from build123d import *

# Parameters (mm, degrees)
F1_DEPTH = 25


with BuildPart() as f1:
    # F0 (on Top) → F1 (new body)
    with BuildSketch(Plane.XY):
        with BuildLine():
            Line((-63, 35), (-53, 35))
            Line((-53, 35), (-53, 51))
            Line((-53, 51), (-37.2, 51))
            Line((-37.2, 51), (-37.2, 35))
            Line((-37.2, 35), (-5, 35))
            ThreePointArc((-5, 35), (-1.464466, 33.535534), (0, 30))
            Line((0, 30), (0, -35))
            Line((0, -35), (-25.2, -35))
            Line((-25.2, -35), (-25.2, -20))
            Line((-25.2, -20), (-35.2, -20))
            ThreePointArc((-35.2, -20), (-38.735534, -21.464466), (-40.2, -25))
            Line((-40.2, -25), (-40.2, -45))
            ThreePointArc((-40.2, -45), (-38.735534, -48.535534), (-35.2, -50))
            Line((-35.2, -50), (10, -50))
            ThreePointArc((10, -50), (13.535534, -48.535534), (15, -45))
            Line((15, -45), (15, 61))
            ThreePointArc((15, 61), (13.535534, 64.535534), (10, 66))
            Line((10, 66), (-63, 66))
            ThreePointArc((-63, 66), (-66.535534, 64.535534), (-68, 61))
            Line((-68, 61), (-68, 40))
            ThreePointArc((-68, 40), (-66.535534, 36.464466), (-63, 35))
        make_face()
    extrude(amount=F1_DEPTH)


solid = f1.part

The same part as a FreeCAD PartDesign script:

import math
import FreeCAD as App
import Part
import Sketcher

V = App.Vector

doc = App.newDocument("Part")
params = doc.addObject("Spreadsheet::Sheet", "Params")
for row, (alias, value) in enumerate([
    ("sketch1_radius", "5 mm"),
    ("sketch1_width", "10 mm"),
    ("sketch1_width2", "73 mm"),
    ("sketch1_height", "16 mm"),
    ("sketch1_height2", "65 mm"),
    ("pad1_length", "25 mm"),
], start=1):
    params.set(f"A{row}", alias)
    params.set(f"B{row}", "=" + value)
    params.setAlias(f"B{row}", alias)

body = doc.addObject("PartDesign::Body", "Body")

# Sketch on XY plane
sketch1 = body.newObject("Sketcher::SketchObject", "Sketch")
sketch1.AttachmentSupport = (doc.getObject("XY_Plane"), [""])
sketch1.MapMode = "FlatFace"
sketch1.addGeometry(Part.LineSegment(V(-63, 35, 0), V(-53, 35, 0)), False)
sketch1.addGeometry(Part.LineSegment(V(-53, 35, 0), V(-53, 51, 0)), False)
sketch1.addGeometry(Part.LineSegment(V(-53, 51, 0), V(-37.2, 51, 0)), False)
sketch1.addGeometry(Part.LineSegment(V(-37.2, 51, 0), V(-37.2, 35, 0)), False)
sketch1.addGeometry(Part.LineSegment(V(-37.2, 35, 0), V(-5, 35, 0)), False)
sketch1.addGeometry(Part.ArcOfCircle(Part.Circle(V(-5, 30, 0), V(0, 0, 1), 5), math.radians(0), math.radians(90)), False)
sketch1.addGeometry(Part.LineSegment(V(0, 30, 0), V(0, -35, 0)), False)
sketch1.addGeometry(Part.LineSegment(V(0, -35, 0), V(-25.2, -35, 0)), False)
sketch1.addGeometry(Part.LineSegment(V(-25.2, -35, 0), V(-25.2, -20, 0)), False)
sketch1.addGeometry(Part.LineSegment(V(-25.2, -20, 0), V(-35.2, -20, 0)), False)
sketch1.addGeometry(Part.ArcOfCircle(Part.Circle(V(-35.2, -25, 0), V(0, 0, 1), 5), math.radians(90), math.radians(180)), False)
sketch1.addGeometry(Part.LineSegment(V(-40.2, -25, 0), V(-40.2, -45, 0)), False)
sketch1.addGeometry(Part.ArcOfCircle(Part.Circle(V(-35.2, -45, 0), V(0, 0, 1), 5), math.radians(180), math.radians(270)), False)
sketch1.addGeometry(Part.LineSegment(V(-35.2, -50, 0), V(10, -50, 0)), False)
sketch1.addGeometry(Part.ArcOfCircle(Part.Circle(V(10, -45, 0), V(0, 0, 1), 5), math.radians(-90), math.radians(0)), False)
sketch1.addGeometry(Part.LineSegment(V(15, -45, 0), V(15, 61, 0)), False)
sketch1.addGeometry(Part.ArcOfCircle(Part.Circle(V(10, 61, 0), V(0, 0, 1), 5), math.radians(0), math.radians(90)), False)
sketch1.addGeometry(Part.LineSegment(V(10, 66, 0), V(-63, 66, 0)), False)
sketch1.addGeometry(Part.ArcOfCircle(Part.Circle(V(-63, 61, 0), V(0, 0, 1), 5), math.radians(90), math.radians(180)), False)
sketch1.addGeometry(Part.LineSegment(V(-68, 61, 0), V(-68, 40, 0)), False)
sketch1.addGeometry(Part.ArcOfCircle(Part.Circle(V(-63, 40, 0), V(0, 0, 1), 5), math.radians(180), math.radians(270)), False)
sketch1.addConstraint(Sketcher.Constraint("Coincident", 0, 2, 1, 1))
sketch1.addConstraint(Sketcher.Constraint("Coincident", 1, 2, 2, 1))
sketch1.addConstraint(Sketcher.Constraint("Coincident", 2, 2, 3, 1))
sketch1.addConstraint(Sketcher.Constraint("Coincident", 3, 2, 4, 1))
sketch1.addConstraint(Sketcher.Constraint("Tangent", 4, 2, 5, 2))
sketch1.addConstraint(Sketcher.Constraint("Tangent", 5, 1, 6, 1))
sketch1.addConstraint(Sketcher.Constraint("Coincident", 6, 2, 7, 1))
sketch1.addConstraint(Sketcher.Constraint("Coincident", 7, 2, 8, 1))
sketch1.addConstraint(Sketcher.Constraint("Coincident", 8, 2, 9, 1))
sketch1.addConstraint(Sketcher.Constraint("Tangent", 9, 2, 10, 1))
sketch1.addConstraint(Sketcher.Constraint("Tangent", 10, 2, 11, 1))
sketch1.addConstraint(Sketcher.Constraint("Tangent", 11, 2, 12, 1))
sketch1.addConstraint(Sketcher.Constraint("Tangent", 12, 2, 13, 1))
sketch1.addConstraint(Sketcher.Constraint("Tangent", 13, 2, 14, 1))
sketch1.addConstraint(Sketcher.Constraint("Tangent", 14, 2, 15, 1))
sketch1.addConstraint(Sketcher.Constraint("Tangent", 15, 2, 16, 1))
sketch1.addConstraint(Sketcher.Constraint("Tangent", 16, 2, 17, 1))
sketch1.addConstraint(Sketcher.Constraint("Tangent", 17, 2, 18, 1))
sketch1.addConstraint(Sketcher.Constraint("Tangent", 18, 2, 19, 1))
sketch1.addConstraint(Sketcher.Constraint("Tangent", 19, 2, 20, 1))
sketch1.addConstraint(Sketcher.Constraint("Tangent", 20, 2, 0, 1))
sketch1.addConstraint(Sketcher.Constraint("Horizontal", 0))
sketch1.addConstraint(Sketcher.Constraint("Vertical", 1))
sketch1.addConstraint(Sketcher.Constraint("Horizontal", 2))
sketch1.addConstraint(Sketcher.Constraint("Vertical", 3))
sketch1.addConstraint(Sketcher.Constraint("Horizontal", 4))
sketch1.addConstraint(Sketcher.Constraint("Vertical", 6))
sketch1.addConstraint(Sketcher.Constraint("Horizontal", 7))
sketch1.addConstraint(Sketcher.Constraint("Vertical", 8))
sketch1.addConstraint(Sketcher.Constraint("Horizontal", 9))
sketch1.addConstraint(Sketcher.Constraint("Vertical", 11))
sketch1.addConstraint(Sketcher.Constraint("Horizontal", 13))
sketch1.addConstraint(Sketcher.Constraint("Vertical", 15))
sketch1.addConstraint(Sketcher.Constraint("Horizontal", 17))
sketch1.addConstraint(Sketcher.Constraint("Vertical", 19))
sketch1.addConstraint(Sketcher.Constraint("Equal", 5, 10))
sketch1.addConstraint(Sketcher.Constraint("Equal", 10, 12))
sketch1.addConstraint(Sketcher.Constraint("Equal", 12, 14))
sketch1.addConstraint(Sketcher.Constraint("Equal", 14, 16))
sketch1.addConstraint(Sketcher.Constraint("Equal", 16, 18))
sketch1.addConstraint(Sketcher.Constraint("Equal", 18, 20))
sketch1.addConstraint(Sketcher.Constraint("PointOnObject", 5, 1, -2))
sketch1.addConstraint(Sketcher.Constraint("Horizontal", 0, 2, 3, 2))
sketch1.addConstraint(Sketcher.Constraint("Equal", 0, 9))
sketch1.addConstraint(Sketcher.Constraint("Radius", 5, 5.0))
sketch1.addConstraint(Sketcher.Constraint("DistanceX", 0, 1, 0, 2, 10.0))
sketch1.addConstraint(Sketcher.Constraint("DistanceX", 17, 2, 17, 1, 73.0))
sketch1.addConstraint(Sketcher.Constraint("DistanceY", 1, 1, 1, 2, 16.0))
sketch1.addConstraint(Sketcher.Constraint("DistanceY", 6, 2, 6, 1, 65.0))
sketch1.addConstraint(Sketcher.Constraint("DistanceY", 8, 1, 8, 2, 15.0))
sketch1.addConstraint(Sketcher.Constraint("DistanceY", 11, 2, 11, 1, 20.0))
sketch1.addConstraint(Sketcher.Constraint("DistanceY", 15, 1, 15, 2, 106.0))
sketch1.addConstraint(Sketcher.Constraint("DistanceX", 2, 1, 2, 2, 15.8))
sketch1.addConstraint(Sketcher.Constraint("DistanceX", 4, 1, 4, 2, 32.2))
sketch1.addConstraint(Sketcher.Constraint("DistanceX", 7, 2, 7, 1, 25.2))
sketch1.addConstraint(Sketcher.Constraint("DistanceY", -1, 1, 5, 3, 30.0))
sketch1.setExpression("Constraints[44]", "Params.sketch1_radius")
sketch1.setExpression("Constraints[45]", "Params.sketch1_width")
sketch1.setExpression("Constraints[46]", "Params.sketch1_width2")
sketch1.setExpression("Constraints[47]", "Params.sketch1_height")
sketch1.setExpression("Constraints[48]", "Params.sketch1_height2")
pad1 = body.newObject("PartDesign::Pad", "Pad")
pad1.Profile = sketch1
pad1.setExpression("Length", "Params.pad1_length")

doc.recompute()
